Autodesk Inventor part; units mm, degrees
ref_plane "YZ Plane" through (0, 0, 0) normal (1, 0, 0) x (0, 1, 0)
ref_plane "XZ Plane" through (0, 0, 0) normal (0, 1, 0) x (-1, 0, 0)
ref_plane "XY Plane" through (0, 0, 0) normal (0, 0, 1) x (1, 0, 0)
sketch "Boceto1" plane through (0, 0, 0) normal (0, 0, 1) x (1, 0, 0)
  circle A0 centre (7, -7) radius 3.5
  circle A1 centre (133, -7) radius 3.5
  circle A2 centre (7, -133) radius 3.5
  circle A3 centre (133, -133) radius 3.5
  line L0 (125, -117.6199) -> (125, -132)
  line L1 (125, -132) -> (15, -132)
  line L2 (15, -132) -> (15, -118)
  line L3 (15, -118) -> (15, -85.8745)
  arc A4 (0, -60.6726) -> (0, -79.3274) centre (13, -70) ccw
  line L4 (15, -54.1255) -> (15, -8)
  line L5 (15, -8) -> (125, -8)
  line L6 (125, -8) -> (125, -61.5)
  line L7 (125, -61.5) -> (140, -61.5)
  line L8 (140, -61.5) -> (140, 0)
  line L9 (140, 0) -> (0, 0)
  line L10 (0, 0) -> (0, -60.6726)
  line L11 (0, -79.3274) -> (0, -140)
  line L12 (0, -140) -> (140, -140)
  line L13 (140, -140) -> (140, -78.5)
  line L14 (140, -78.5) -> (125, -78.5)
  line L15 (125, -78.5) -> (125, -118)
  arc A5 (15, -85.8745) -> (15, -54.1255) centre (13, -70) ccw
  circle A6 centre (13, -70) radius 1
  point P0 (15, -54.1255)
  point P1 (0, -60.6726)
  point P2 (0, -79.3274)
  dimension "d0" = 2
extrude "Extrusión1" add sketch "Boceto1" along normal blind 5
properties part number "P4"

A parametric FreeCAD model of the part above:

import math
import FreeCAD as App
import Part
import Sketcher
from FreeCAD import Vector
Q = App.Units.Quantity

doc = App.newDocument("Part")
body = doc.addObject("PartDesign::Body", "Body")

sketch1 = doc.addObject("Sketcher::SketchObject", "Sketch")
body.addObject(sketch1)
sketch1.AttachmentSupport = (doc.XY_Plane, [""])
sketch1.MapMode = "FlatFace"
sketch1.addGeometry([
    Part.LineSegment(Vector(125, -78.5, 0), Vector(125, -132, 0)),
    Part.LineSegment(Vector(125, -132, 0), Vector(15, -132, 0)),
    Part.LineSegment(Vector(15, -132, 0), Vector(15, -85.9, 0)),
    Part.ArcOfCircle(Part.Circle(Vector(13, -70, 0), Vector(0, 0, 1), 16), math.radians(-83), math.radians(83)),
    Part.LineSegment(Vector(15, -54.1, 0), Vector(15, -8, 0)),
    Part.LineSegment(Vector(15, -8, 0), Vector(125, -8, 0)),
    Part.LineSegment(Vector(125, -8, 0), Vector(125, -61.5, 0)),
    Part.LineSegment(Vector(125, -61.5, 0), Vector(140, -61.5, 0)),
    Part.LineSegment(Vector(140, -61.5, 0), Vector(140, 0, 0)),
    Part.LineSegment(Vector(140, 0, 0), Vector(0, 0, 0)),
    Part.LineSegment(Vector(0, 0, 0), Vector(0, -60.7, 0)),
    Part.ArcOfCircle(Part.Circle(Vector(13, -70, 0), Vector(0, 0, 1), 16), math.radians(144), math.radians(216)),
    Part.LineSegment(Vector(0, -79.3, 0), Vector(0, -140, 0)),
    Part.LineSegment(Vector(0, -140, 0), Vector(140, -140, 0)),
    Part.LineSegment(Vector(140, -140, 0), Vector(140, -78.5, 0)),
    Part.LineSegment(Vector(140, -78.5, 0), Vector(125, -78.5, 0)),
    Part.Circle(Vector(7, -133, 0), Vector(0, 0, 1), 3.5),
    Part.Circle(Vector(133, -133, 0), Vector(0, 0, 1), 3.5),
    Part.Circle(Vector(13, -70, 0), Vector(0, 0, 1), 1),
    Part.Circle(Vector(7, -7, 0), Vector(0, 0, 1), 3.5),
    Part.Circle(Vector(133, -7, 0), Vector(0, 0, 1), 3.5),
], False)
sketch1.addConstraint([
    Sketcher.Constraint("Coincident", 0, 2, 1, 1),
    Sketcher.Constraint("Coincident", 1, 2, 2, 1),
    Sketcher.Constraint("Coincident", 2, 2, 3, 1),
    Sketcher.Constraint("Coincident", 3, 2, 4, 1),
    Sketcher.Constraint("Coincident", 4, 2, 5, 1),
    Sketcher.Constraint("Coincident", 5, 2, 6, 1),
    Sketcher.Constraint("Coincident", 6, 2, 7, 1),
    Sketcher.Constraint("Coincident", 7, 2, 8, 1),
    Sketcher.Constraint("Coincident", 8, 2, 9, 1),
    Sketcher.Constraint("Coincident", 9, 2, 10, 1),
    Sketcher.Constraint("Coincident", 10, 2, 11, 1),
    Sketcher.Constraint("Coincident", 11, 2, 12, 1),
    Sketcher.Constraint("Coincident", 12, 2, 13, 1),
    Sketcher.Constraint("Coincident", 13, 2, 14, 1),
    Sketcher.Constraint("Coincident", 14, 2, 15, 1),
    Sketcher.Constraint("Coincident", 15, 2, 0, 1),
    Sketcher.Constraint("Vertical", 0),
    Sketcher.Constraint("Horizontal", 1),
    Sketcher.Constraint("Vertical", 2),
    Sketcher.Constraint("Vertical", 4),
    Sketcher.Constraint("Horizontal", 5),
    Sketcher.Constraint("Vertical", 6),
    Sketcher.Constraint("Horizontal", 7),
    Sketcher.Constraint("Vertical", 8),
    Sketcher.Constraint("Horizontal", 9),
    Sketcher.Constraint("Vertical", 10),
    Sketcher.Constraint("Vertical", 12),
    Sketcher.Constraint("Horizontal", 13),
    Sketcher.Constraint("Vertical", 14),
    Sketcher.Constraint("Horizontal", 15),
    Sketcher.Constraint("Coincident", 9, 2, -1, 1),
    Sketcher.Constraint("Coincident", 11, 3, 3, 3),
    Sketcher.Constraint("Coincident", 18, 3, 3, 3),
    Sketcher.Constraint("Equal", 3, 11),
    Sketcher.Constraint("Equal", 16, 17),
    Sketcher.Constraint("Equal", 17, 19),
    Sketcher.Constraint("Equal", 19, 20),
    Sketcher.Constraint("PointOnObject", 11, 2, -2),
    Sketcher.Constraint("Horizontal", 16, 3, 17, 3),
    Sketcher.Constraint("Horizontal", 19, 3, 20, 3),
    Sketcher.Constraint("Vertical", 16, 3, 19, 3),
    Sketcher.Constraint("Vertical", 17, 3, 20, 3),
    Sketcher.Constraint("Vertical", 2, 2, 3, 2),
    Sketcher.Constraint("Vertical", 0, 2, 5, 2),
    Sketcher.Constraint("Vertical", 8, 2, 13, 2),
    Sketcher.Constraint("Equal", 2, 4),
    Sketcher.Constraint("Equal", 0, 6),
    Sketcher.Constraint("Equal", 10, 12),
    Sketcher.Constraint("Diameter", 18, Q("2 mm")),
    Sketcher.Constraint("Diameter", 16, Q("7 mm")),
    Sketcher.Constraint("Radius", 3, Q("16 mm")),
    Sketcher.Constraint("DistanceX", 3, 3, 1, 2, Q("2 mm")),
    Sketcher.Constraint("DistanceX", 1, 2, 1, 1, Q("110 mm")),
    Sketcher.Constraint("DistanceX", 7, 1, 7, 2, Q("15 mm")),
    Sketcher.Constraint("DistanceX", 9, 2, 9, 1, Q("140 mm")),
    Sketcher.Constraint("DistanceY", 0, 2, 0, 1, Q("53.5 mm")),
    Sketcher.Constraint("DistanceY", 8, 1, 8, 2, Q("61.5 mm")),
    Sketcher.Constraint("DistanceY", 3, 3, -1, 1, Q("70 mm")),
    Sketcher.Constraint("DistanceX", -1, 1, 16, 3, Q("7 mm")),
    Sketcher.Constraint("DistanceY", 16, 3, -1, 1, Q("133 mm")),
    Sketcher.Constraint("DistanceX", -1, 1, 17, 3, Q("133 mm")),
    Sketcher.Constraint("DistanceY", 19, 3, -1, 1, Q("7 mm")),
])
pad1 = doc.addObject("PartDesign::Pad", "Pad")
body.addObject(pad1)
pad1.Profile = sketch1
pad1.Length = 5

doc.recompute()
